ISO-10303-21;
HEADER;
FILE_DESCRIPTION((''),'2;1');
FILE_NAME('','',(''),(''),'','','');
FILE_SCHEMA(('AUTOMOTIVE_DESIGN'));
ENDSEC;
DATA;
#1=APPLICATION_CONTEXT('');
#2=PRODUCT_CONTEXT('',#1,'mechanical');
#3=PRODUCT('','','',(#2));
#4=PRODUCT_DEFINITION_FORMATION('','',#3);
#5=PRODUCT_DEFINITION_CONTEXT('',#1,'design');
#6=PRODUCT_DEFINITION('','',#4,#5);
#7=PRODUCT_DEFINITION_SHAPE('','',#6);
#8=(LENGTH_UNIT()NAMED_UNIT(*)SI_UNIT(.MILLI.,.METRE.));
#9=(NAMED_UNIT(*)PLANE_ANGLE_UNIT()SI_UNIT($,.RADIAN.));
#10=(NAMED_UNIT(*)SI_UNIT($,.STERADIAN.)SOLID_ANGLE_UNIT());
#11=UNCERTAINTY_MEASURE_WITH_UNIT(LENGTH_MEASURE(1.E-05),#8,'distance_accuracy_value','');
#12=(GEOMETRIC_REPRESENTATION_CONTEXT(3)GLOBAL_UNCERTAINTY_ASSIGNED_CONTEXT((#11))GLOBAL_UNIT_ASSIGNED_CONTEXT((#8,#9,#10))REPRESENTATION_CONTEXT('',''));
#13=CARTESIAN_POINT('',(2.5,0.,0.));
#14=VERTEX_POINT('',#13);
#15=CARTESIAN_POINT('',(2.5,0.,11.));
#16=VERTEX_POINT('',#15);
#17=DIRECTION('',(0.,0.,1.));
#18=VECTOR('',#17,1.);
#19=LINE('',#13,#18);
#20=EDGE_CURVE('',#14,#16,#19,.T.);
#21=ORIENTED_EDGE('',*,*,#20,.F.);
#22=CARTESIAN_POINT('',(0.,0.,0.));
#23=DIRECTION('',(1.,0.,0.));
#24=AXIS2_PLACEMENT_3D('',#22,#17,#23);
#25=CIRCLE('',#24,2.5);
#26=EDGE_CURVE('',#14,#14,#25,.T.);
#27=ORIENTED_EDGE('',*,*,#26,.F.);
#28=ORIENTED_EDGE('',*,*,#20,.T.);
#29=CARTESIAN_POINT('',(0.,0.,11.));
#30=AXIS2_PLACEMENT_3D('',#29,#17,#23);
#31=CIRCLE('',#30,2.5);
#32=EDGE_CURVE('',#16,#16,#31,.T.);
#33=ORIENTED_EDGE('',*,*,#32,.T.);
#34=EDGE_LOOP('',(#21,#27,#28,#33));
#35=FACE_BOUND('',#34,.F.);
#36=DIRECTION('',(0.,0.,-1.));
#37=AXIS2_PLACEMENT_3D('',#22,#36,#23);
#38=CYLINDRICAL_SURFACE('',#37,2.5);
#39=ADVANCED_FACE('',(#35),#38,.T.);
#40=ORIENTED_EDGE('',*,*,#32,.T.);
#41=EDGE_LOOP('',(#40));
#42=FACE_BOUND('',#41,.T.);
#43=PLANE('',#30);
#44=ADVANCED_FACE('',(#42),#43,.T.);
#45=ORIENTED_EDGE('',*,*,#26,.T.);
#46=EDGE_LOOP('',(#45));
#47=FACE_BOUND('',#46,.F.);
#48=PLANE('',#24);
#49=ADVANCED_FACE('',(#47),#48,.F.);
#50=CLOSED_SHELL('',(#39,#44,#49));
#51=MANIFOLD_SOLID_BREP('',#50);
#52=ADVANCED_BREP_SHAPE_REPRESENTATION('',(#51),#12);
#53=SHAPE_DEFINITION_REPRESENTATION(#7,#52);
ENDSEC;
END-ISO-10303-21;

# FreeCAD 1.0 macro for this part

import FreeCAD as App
import Part
import Sketcher

doc = App.newDocument("Part")
params = doc.addObject("Spreadsheet::Sheet", "Params")
for row, (alias, value) in enumerate([
    ("sketch1_diameter", "5 mm"),
    ("pad1_length", "11 mm"),
], start=1):
    params.set(f"A{row}", alias)
    params.set(f"B{row}", "=" + value)
    params.setAlias(f"B{row}", alias)

body = doc.addObject("PartDesign::Body", "Body")

sketch1 = doc.addObject("Sketcher::SketchObject", "Sketch")
body.addObject(sketch1)
sketch1.AttachmentSupport = (doc.XY_Plane, [""])
sketch1.MapMode = "FlatFace"
sketch1.addGeometry(Part.Circle(App.Vector(0, 0, 0), App.Vector(0, 0, 1), 2.5), False)
sketch1.addConstraint(Sketcher.Constraint("Coincident", 0, 3, -1, 1))
sketch1.addConstraint(Sketcher.Constraint("Diameter", 0, 5.0))
sketch1.setExpression("Constraints[1]", "Params.sketch1_diameter")
pad1 = doc.addObject("PartDesign::Pad", "Pad")
body.addObject(pad1)
pad1.Profile = sketch1
pad1.setExpression("Length", "Params.pad1_length")

doc.recompute()
